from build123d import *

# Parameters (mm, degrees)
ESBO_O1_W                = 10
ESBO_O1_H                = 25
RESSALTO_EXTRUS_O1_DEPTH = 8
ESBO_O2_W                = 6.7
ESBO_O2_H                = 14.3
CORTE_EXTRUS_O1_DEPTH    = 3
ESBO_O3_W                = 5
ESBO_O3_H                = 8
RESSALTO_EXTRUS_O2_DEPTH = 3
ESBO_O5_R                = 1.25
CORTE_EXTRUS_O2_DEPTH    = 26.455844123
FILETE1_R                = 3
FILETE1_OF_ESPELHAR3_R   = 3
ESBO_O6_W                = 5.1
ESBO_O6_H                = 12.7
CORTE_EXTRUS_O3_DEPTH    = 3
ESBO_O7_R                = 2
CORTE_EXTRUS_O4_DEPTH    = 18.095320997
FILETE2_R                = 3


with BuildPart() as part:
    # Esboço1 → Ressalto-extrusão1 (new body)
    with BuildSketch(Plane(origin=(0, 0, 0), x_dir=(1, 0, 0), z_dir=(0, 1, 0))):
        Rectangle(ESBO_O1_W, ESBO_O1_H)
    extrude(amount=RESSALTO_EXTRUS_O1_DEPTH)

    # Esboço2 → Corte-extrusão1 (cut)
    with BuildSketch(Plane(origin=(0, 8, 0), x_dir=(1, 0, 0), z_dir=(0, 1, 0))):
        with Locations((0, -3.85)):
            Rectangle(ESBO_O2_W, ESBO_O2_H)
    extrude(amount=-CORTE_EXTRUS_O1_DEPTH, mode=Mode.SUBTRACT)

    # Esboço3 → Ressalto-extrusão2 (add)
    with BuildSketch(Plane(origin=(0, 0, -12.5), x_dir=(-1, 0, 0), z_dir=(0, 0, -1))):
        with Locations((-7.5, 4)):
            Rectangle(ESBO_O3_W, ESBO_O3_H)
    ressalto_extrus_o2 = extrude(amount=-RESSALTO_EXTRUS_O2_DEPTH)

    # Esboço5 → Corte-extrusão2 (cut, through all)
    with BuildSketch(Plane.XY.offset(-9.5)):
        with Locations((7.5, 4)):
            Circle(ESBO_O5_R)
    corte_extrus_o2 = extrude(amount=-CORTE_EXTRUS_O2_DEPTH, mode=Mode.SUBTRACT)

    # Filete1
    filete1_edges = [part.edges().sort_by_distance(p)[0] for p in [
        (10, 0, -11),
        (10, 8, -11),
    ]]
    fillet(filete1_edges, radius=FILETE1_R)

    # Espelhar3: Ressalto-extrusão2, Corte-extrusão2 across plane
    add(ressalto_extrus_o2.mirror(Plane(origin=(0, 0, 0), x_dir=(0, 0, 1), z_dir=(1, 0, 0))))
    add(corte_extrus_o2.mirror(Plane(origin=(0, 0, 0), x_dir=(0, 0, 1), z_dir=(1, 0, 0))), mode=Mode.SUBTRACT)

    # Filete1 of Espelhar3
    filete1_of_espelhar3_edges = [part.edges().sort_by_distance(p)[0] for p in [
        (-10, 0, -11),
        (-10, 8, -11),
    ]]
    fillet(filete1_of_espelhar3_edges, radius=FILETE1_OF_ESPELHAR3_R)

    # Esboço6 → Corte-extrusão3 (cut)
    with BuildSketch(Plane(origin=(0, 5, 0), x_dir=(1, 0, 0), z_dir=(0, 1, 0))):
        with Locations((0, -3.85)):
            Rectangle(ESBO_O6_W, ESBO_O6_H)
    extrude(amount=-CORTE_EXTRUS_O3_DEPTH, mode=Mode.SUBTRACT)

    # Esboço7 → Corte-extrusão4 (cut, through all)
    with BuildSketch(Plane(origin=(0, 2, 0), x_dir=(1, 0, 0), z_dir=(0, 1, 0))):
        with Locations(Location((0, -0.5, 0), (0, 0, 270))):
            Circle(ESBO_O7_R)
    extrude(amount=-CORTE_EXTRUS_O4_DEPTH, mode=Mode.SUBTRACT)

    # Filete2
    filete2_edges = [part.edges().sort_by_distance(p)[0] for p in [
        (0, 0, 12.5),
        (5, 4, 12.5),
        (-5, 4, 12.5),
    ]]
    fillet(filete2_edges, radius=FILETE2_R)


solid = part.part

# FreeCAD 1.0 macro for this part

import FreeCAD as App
import Part
import Sketcher
from FreeCAD import Vector


def edges_at(feature, points):
    """Names of the edges that pass closest to the given points."""
    edges = feature.Shape.Edges
    near = lambda p: min(range(len(edges)), key=lambda i: edges[i].distToShape(Part.Vertex(*p))[0])
    return sorted({f"Edge{near(p) + 1}" for p in points})

doc = App.newDocument("Part")
body = doc.addObject("PartDesign::Body", "Body")

# Sketch on XZ plane
sketch1 = doc.addObject("Sketcher::SketchObject", "Sketch")
body.addObject(sketch1)
sketch1.AttachmentSupport = (doc.XZ_Plane, [""])
sketch1.MapMode = "FlatFace"
sketch1.addGeometry([
    Part.LineSegment(Vector(-5, -12, 0), Vector(-5, 12, 0)),
    Part.LineSegment(Vector(-5, 12, 0), Vector(5, 12, 0)),
    Part.LineSegment(Vector(5, 12, 0), Vector(5, -12, 0)),
    Part.LineSegment(Vector(5, -12, 0), Vector(-5, -12, 0)),
], False)
sketch1.addConstraint([
    Sketcher.Constraint("Coincident", 0, 2, 1, 1),
    Sketcher.Constraint("Coincident", 1, 2, 2, 1),
    Sketcher.Constraint("Coincident", 2, 2, 3, 1),
    Sketcher.Constraint("Coincident", 3, 2, 0, 1),
    Sketcher.Constraint("Vertical", 0),
    Sketcher.Constraint("Horizontal", 1),
    Sketcher.Constraint("Vertical", 2),
    Sketcher.Constraint("Horizontal", 3),
    Sketcher.Constraint("Symmetric", 0, 2, 2, 2, -1, 1),
    Sketcher.Constraint("DistanceX", 1, 1, 1, 2, 10.0),
    Sketcher.Constraint("DistanceY", 0, 1, 0, 2, 25.0),
])
pad1 = doc.addObject("PartDesign::Pad", "Pad")
body.addObject(pad1)
pad1.Profile = sketch1
pad1.Length = 8
pad1.Reversed = True

# Sketch on XZ plane
sketch2 = doc.addObject("Sketcher::SketchObject", "Sketch001")
body.addObject(sketch2)
sketch2.AttachmentSupport = (doc.XZ_Plane, [""])
sketch2.MapMode = "FlatFace"
sketch2.AttachmentOffset = App.Placement(Vector(0, 0, -8), App.Rotation())
sketch2.addGeometry([
    Part.LineSegment(Vector(-3, -3, 0), Vector(-3, 11, 0)),
    Part.LineSegment(Vector(-3, 11, 0), Vector(3, 11, 0)),
    Part.LineSegment(Vector(3, 11, 0), Vector(3, -3, 0)),
    Part.LineSegment(Vector(3, -3, 0), Vector(-3, -3, 0)),
], False)
sketch2.addConstraint([
    Sketcher.Constraint("Coincident", 0, 2, 1, 1),
    Sketcher.Constraint("Coincident", 1, 2, 2, 1),
    Sketcher.Constraint("Coincident", 2, 2, 3, 1),
    Sketcher.Constraint("Coincident", 3, 2, 0, 1),
    Sketcher.Constraint("Vertical", 0),
    Sketcher.Constraint("Horizontal", 1),
    Sketcher.Constraint("Vertical", 2),
    Sketcher.Constraint("Horizontal", 3),
    Sketcher.Constraint("DistanceX", 1, 1, 1, 2, 6.7),
    Sketcher.Constraint("DistanceY", 0, 1, 0, 2, 14.3),
    Sketcher.Constraint("DistanceY", -1, 1, 0, 2, 11.0),
    Sketcher.Constraint("DistanceX", 0, 2, -1, 1, 3.35),
])
pocket1 = doc.addObject("PartDesign::Pocket", "Pocket")
body.addObject(pocket1)
pocket1.Profile = sketch2
pocket1.Length = 3
pocket1.Reversed = True

# Sketch on XY plane
sketch3 = doc.addObject("Sketcher::SketchObject", "Sketch002")
body.addObject(sketch3)
sketch3.AttachmentSupport = (doc.XY_Plane, [""])
sketch3.MapMode = "FlatFace"
sketch3.AttachmentOffset = App.Placement(Vector(0, 0, -12.5), App.Rotation())
sketch3.addGeometry([
    Part.LineSegment(Vector(10, 8, 0), Vector(10, 0, 0)),
    Part.LineSegment(Vector(10, 0, 0), Vector(5, 0, 0)),
    Part.LineSegment(Vector(5, 0, 0), Vector(5, 8, 0)),
    Part.LineSegment(Vector(5, 8, 0), Vector(10, 8, 0)),
], False)
sketch3.addConstraint([
    Sketcher.Constraint("Coincident", 0, 2, 1, 1),
    Sketcher.Constraint("Coincident", 1, 2, 2, 1),
    Sketcher.Constraint("Coincident", 2, 2, 3, 1),
    Sketcher.Constraint("Coincident", 3, 2, 0, 1),
    Sketcher.Constraint("Vertical", 0),
    Sketcher.Constraint("Horizontal", 1),
    Sketcher.Constraint("Vertical", 2),
    Sketcher.Constraint("Horizontal", 3),
    Sketcher.Constraint("PointOnObject", 0, 2, -1),
    Sketcher.Constraint("DistanceX", 1, 2, 1, 1, 5.0),
    Sketcher.Constraint("DistanceY", 0, 2, 0, 1, 8.0),
    Sketcher.Constraint("DistanceX", -1, 1, 0, 2, 10.0),
])
pad2 = doc.addObject("PartDesign::Pad", "Pad001")
body.addObject(pad2)
pad2.Profile = sketch3
pad2.Length = 3

# Sketch on XY plane
sketch4 = doc.addObject("Sketcher::SketchObject", "Sketch003")
body.addObject(sketch4)
sketch4.AttachmentSupport = (doc.XY_Plane, [""])
sketch4.MapMode = "FlatFace"
sketch4.AttachmentOffset = App.Placement(Vector(0, 0, -9.5), App.Rotation())
sketch4.addGeometry(Part.Circle(Vector(7.5, 4, 0), Vector(0, 0, 1), 1.2), False)
sketch4.addConstraint([
    Sketcher.Constraint("Diameter", 0, 2.5),
    Sketcher.Constraint("DistanceY", -1, 1, 0, 3, 4.0),
    Sketcher.Constraint("DistanceX", -1, 1, 0, 3, 7.5),
])
pocket2 = doc.addObject("PartDesign::Pocket", "Pocket001")
body.addObject(pocket2)
pocket2.Profile = sketch4
pocket2.Type = "ThroughAll"
doc.recompute()

fillet = doc.addObject("PartDesign::Fillet", "Fillet")
body.addObject(fillet)
fillet.Base = (pocket2, edges_at(pocket2, [(10, 0, -11), (10, 8, -11)]))
fillet.Radius = 3
doc.recompute()

mirrored = doc.addObject("PartDesign::Mirrored", "Mirrored")
body.addObject(mirrored)
mirrored.Originals = [pad2, pocket2]
mirrored.MirrorPlane = (doc.YZ_Plane, [""])
body.Tip = mirrored
doc.recompute()

fillet2 = doc.addObject("PartDesign::Fillet", "Fillet001")
body.addObject(fillet2)
fillet2.Base = (mirrored, edges_at(mirrored, [(-10, 0, -11), (-10, 8, -11)]))
fillet2.Radius = 3

# Sketch on XZ plane
sketch5 = doc.addObject("Sketcher::SketchObject", "Sketch004")
body.addObject(sketch5)
sketch5.AttachmentSupport = (doc.XZ_Plane, [""])
sketch5.MapMode = "FlatFace"
sketch5.AttachmentOffset = App.Placement(Vector(0, 0, -5), App.Rotation())
sketch5.addGeometry([
    Part.LineSegment(Vector(-3, -2, 0), Vector(-3, 10, 0)),
    Part.LineSegment(Vector(-3, 10, 0), Vector(3, 10, 0)),
    Part.LineSegment(Vector(3, 10, 0), Vector(3, -2, 0)),
    Part.LineSegment(Vector(3, -2, 0), Vector(-3, -2, 0)),
], False)
sketch5.addConstraint([
    Sketcher.Constraint("Coincident", 0, 2, 1, 1),
    Sketcher.Constraint("Coincident", 1, 2, 2, 1),
    Sketcher.Constraint("Coincident", 2, 2, 3, 1),
    Sketcher.Constraint("Coincident", 3, 2, 0, 1),
    Sketcher.Constraint("Vertical", 0),
    Sketcher.Constraint("Horizontal", 1),
    Sketcher.Constraint("Vertical", 2),
    Sketcher.Constraint("Horizontal", 3),
    Sketcher.Constraint("DistanceX", 1, 1, 1, 2, 5.1),
    Sketcher.Constraint("DistanceY", 0, 1, 0, 2, 12.7),
    Sketcher.Constraint("DistanceY", -1, 1, 0, 2, 10.2),
    Sketcher.Constraint("DistanceX", 0, 2, -1, 1, 2.55),
])
pocket3 = doc.addObject("PartDesign::Pocket", "Pocket002")
body.addObject(pocket3)
pocket3.Profile = sketch5
pocket3.Length = 3
pocket3.Reversed = True

# Sketch on XZ plane
sketch6 = doc.addObject("Sketcher::SketchObject", "Sketch005")
body.addObject(sketch6)
sketch6.AttachmentSupport = (doc.XZ_Plane, [""])
sketch6.MapMode = "FlatFace"
sketch6.AttachmentOffset = App.Placement(Vector(0, 0, -2), App.Rotation())
sketch6.addGeometry(Part.Circle(Vector(0, 0.5, 0), Vector(0, 0, 1), 2), False)
sketch6.addConstraint([
    Sketcher.Constraint("PointOnObject", 0, 3, -2),
    Sketcher.Constraint("Diameter", 0, 4.0),
    Sketcher.Constraint("DistanceY", -1, 1, 0, 3, 0.5),
])
pocket4 = doc.addObject("PartDesign::Pocket", "Pocket003")
body.addObject(pocket4)
pocket4.Profile = sketch6
pocket4.Type = "ThroughAll"
pocket4.Reversed = True
doc.recompute()

fillet3 = doc.addObject("PartDesign::Fillet", "Fillet002")
body.addObject(fillet3)
fillet3.Base = (pocket4, edges_at(pocket4, [(0, 0, 12.5), (5, 4, 12.5), (-5, 4, 12.5)]))
fillet3.Radius = 3

doc.recompute()
